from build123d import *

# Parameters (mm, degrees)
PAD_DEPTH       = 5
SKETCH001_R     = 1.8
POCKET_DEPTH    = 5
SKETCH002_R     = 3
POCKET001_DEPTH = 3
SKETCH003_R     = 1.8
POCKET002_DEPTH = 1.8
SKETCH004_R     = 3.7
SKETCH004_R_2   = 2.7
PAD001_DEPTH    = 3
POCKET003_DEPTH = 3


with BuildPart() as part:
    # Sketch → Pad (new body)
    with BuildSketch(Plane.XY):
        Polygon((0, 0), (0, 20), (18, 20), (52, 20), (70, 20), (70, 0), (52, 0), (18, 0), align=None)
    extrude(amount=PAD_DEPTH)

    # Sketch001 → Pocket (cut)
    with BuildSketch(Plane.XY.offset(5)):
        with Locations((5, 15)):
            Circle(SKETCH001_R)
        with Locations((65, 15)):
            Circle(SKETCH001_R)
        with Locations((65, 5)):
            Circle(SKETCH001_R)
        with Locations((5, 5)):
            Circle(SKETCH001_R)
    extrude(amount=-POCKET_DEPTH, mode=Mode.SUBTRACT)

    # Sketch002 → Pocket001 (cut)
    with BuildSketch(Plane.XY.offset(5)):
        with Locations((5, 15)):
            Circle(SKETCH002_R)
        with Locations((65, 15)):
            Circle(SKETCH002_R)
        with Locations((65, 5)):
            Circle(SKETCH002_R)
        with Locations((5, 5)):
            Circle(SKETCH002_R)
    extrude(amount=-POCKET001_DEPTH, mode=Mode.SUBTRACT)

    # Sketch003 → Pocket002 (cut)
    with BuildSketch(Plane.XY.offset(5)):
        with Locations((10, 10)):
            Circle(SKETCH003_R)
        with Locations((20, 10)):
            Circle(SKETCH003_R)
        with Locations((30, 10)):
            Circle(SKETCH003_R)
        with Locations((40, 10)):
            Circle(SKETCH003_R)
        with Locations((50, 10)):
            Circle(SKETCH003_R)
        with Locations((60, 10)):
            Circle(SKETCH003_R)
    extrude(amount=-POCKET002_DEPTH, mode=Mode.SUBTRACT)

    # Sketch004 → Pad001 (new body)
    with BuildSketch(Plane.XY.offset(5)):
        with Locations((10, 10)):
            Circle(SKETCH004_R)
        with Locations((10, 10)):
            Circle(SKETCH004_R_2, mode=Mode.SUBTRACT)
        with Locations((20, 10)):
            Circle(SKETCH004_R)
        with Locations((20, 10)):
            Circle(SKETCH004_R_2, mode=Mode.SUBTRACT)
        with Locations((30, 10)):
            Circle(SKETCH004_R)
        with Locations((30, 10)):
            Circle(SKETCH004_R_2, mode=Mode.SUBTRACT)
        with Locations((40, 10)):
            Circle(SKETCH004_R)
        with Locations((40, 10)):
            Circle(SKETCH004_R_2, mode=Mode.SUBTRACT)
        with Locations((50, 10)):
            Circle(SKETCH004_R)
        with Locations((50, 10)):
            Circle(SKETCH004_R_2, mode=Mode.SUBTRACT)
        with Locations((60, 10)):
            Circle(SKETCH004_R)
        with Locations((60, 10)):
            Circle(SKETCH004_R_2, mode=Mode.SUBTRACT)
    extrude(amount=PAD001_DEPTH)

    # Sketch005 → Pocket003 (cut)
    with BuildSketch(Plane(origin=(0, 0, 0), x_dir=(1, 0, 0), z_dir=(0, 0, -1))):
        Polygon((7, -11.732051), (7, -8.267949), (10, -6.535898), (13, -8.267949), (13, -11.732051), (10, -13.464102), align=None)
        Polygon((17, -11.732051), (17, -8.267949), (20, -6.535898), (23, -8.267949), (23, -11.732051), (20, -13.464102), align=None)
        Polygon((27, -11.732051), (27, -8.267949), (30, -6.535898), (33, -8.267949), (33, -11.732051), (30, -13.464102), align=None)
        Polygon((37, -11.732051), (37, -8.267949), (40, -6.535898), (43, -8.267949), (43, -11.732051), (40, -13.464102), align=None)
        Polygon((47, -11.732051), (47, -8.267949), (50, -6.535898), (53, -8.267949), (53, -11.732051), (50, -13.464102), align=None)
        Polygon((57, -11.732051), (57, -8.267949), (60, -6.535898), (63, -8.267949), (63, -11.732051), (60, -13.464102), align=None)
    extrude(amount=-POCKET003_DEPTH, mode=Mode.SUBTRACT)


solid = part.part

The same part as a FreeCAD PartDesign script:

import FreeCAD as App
import Part
import Sketcher
from FreeCAD import Vector
Q = App.Units.Quantity

doc = App.newDocument("Part")
body = doc.addObject("PartDesign::Body", "Body")

sketch1 = doc.addObject("Sketcher::SketchObject", "Sketch")
body.addObject(sketch1)
sketch1.AttachmentSupport = (doc.XY_Plane, [""])
sketch1.MapMode = "FlatFace"
sketch1.addGeometry(Part.LineSegment(Vector(0, 20, 0), Vector(0, 0, 0)), False)
sketch1.addGeometry(Part.LineSegment(Vector(0, 0, 0), Vector(70, 0, 0)), False)
sketch1.addGeometry(Part.LineSegment(Vector(70, 0, 0), Vector(70, 20, 0)), False)
sketch1.addGeometry(Part.LineSegment(Vector(70, 20, 0), Vector(0, 20, 0)), False)
sketch1.addConstraint(Sketcher.Constraint("Coincident", 0, 2, 1, 1))
sketch1.addConstraint(Sketcher.Constraint("Coincident", 1, 2, 2, 1))
sketch1.addConstraint(Sketcher.Constraint("Coincident", 2, 2, 3, 1))
sketch1.addConstraint(Sketcher.Constraint("Coincident", 3, 2, 0, 1))
sketch1.addConstraint(Sketcher.Constraint("Vertical", 0))
sketch1.addConstraint(Sketcher.Constraint("Horizontal", 1))
sketch1.addConstraint(Sketcher.Constraint("Vertical", 2))
sketch1.addConstraint(Sketcher.Constraint("Horizontal", 3))
sketch1.addConstraint(Sketcher.Constraint("Coincident", 0, 2, -1, 1))
sketch1.addConstraint(Sketcher.Constraint("DistanceX", 1, 1, 1, 2, 70.0))
sketch1.addConstraint(Sketcher.Constraint("DistanceY", 0, 2, 0, 1, 20.0))
pad1 = doc.addObject("PartDesign::Pad", "Pad")
body.addObject(pad1)
pad1.Profile = sketch1
pad1.Length = 5

sketch2 = doc.addObject("Sketcher::SketchObject", "Sketch001")
body.addObject(sketch2)
sketch2.AttachmentSupport = (doc.XY_Plane, [""])
sketch2.MapMode = "FlatFace"
sketch2.AttachmentOffset = App.Placement(Vector(0, 0, 5), App.Rotation())
sketch2.addGeometry(Part.Circle(Vector(5, 15, 0), Vector(0, 0, 1), 1.8), False)
sketch2.addGeometry(Part.Circle(Vector(65, 15, 0), Vector(0, 0, 1), 1.8), False)
sketch2.addGeometry(Part.Circle(Vector(65, 5, 0), Vector(0, 0, 1), 1.8), False)
sketch2.addGeometry(Part.Circle(Vector(5, 5, 0), Vector(0, 0, 1), 1.8), False)
sketch2.addConstraint(Sketcher.Constraint("Equal", 0, 1))
sketch2.addConstraint(Sketcher.Constraint("Equal", 1, 2))
sketch2.addConstraint(Sketcher.Constraint("Equal", 2, 3))
sketch2.addConstraint(Sketcher.Constraint("Horizontal", 0, 3, 1, 3))
sketch2.addConstraint(Sketcher.Constraint("Horizontal", 2, 3, 3, 3))
sketch2.addConstraint(Sketcher.Constraint("Vertical", 1, 3, 2, 3))
sketch2.addConstraint(Sketcher.Constraint("Vertical", 0, 3, 3, 3))
sketch2.addConstraint(Sketcher.Constraint("Diameter", 0, 3.6))
sketch2.addConstraint(Sketcher.Constraint("DistanceX", -1, 1, 0, 3, 5.0))
sketch2.addConstraint(Sketcher.Constraint("DistanceY", -1, 1, 0, 3, 15.0))
sketch2.addConstraint(Sketcher.Constraint("DistanceX", -1, 1, 1, 3, 65.0))
sketch2.addConstraint(Sketcher.Constraint("DistanceY", -1, 1, 2, 3, 5.0))
pocket1 = doc.addObject("PartDesign::Pocket", "Pocket")
body.addObject(pocket1)
pocket1.Profile = sketch2
pocket1.Length = 5

sketch3 = doc.addObject("Sketcher::SketchObject", "Sketch002")
body.addObject(sketch3)
sketch3.AttachmentSupport = (doc.XY_Plane, [""])
sketch3.MapMode = "FlatFace"
sketch3.AttachmentOffset = App.Placement(Vector(0, 0, 5), App.Rotation())
sketch3.addGeometry(Part.Circle(Vector(5, 15, 0), Vector(0, 0, 1), 3), False)
sketch3.addGeometry(Part.Circle(Vector(65, 15, 0), Vector(0, 0, 1), 3), False)
sketch3.addGeometry(Part.Circle(Vector(65, 5, 0), Vector(0, 0, 1), 3), False)
sketch3.addGeometry(Part.Circle(Vector(5, 5, 0), Vector(0, 0, 1), 3), False)
sketch3.addConstraint(Sketcher.Constraint("Equal", 0, 1))
sketch3.addConstraint(Sketcher.Constraint("Equal", 1, 2))
sketch3.addConstraint(Sketcher.Constraint("Equal", 2, 3))
sketch3.addConstraint(Sketcher.Constraint("Horizontal", 0, 3, 1, 3))
sketch3.addConstraint(Sketcher.Constraint("Horizontal", 2, 3, 3, 3))
sketch3.addConstraint(Sketcher.Constraint("Vertical", 1, 3, 2, 3))
sketch3.addConstraint(Sketcher.Constraint("Vertical", 0, 3, 3, 3))
sketch3.addConstraint(Sketcher.Constraint("Diameter", 0, 6.0))
sketch3.addConstraint(Sketcher.Constraint("DistanceX", -1, 1, 0, 3, 5.0))
sketch3.addConstraint(Sketcher.Constraint("DistanceY", -1, 1, 0, 3, 15.0))
sketch3.addConstraint(Sketcher.Constraint("DistanceX", -1, 1, 1, 3, 65.0))
sketch3.addConstraint(Sketcher.Constraint("DistanceY", -1, 1, 2, 3, 5.0))
pocket2 = doc.addObject("PartDesign::Pocket", "Pocket001")
body.addObject(pocket2)
pocket2.Profile = sketch3
pocket2.Length = 3

sketch4 = doc.addObject("Sketcher::SketchObject", "Sketch003")
body.addObject(sketch4)
sketch4.AttachmentSupport = (doc.XY_Plane, [""])
sketch4.MapMode = "FlatFace"
sketch4.AttachmentOffset = App.Placement(Vector(0, 0, 5), App.Rotation())
sketch4.addGeometry(Part.Circle(Vector(10, 10, 0), Vector(0, 0, 1), 1.8), False)
sketch4.addGeometry(Part.Circle(Vector(20, 10, 0), Vector(0, 0, 1), 1.8), False)
sketch4.addGeometry(Part.Circle(Vector(30, 10, 0), Vector(0, 0, 1), 1.8), False)
sketch4.addGeometry(Part.Circle(Vector(40, 10, 0), Vector(0, 0, 1), 1.8), False)
sketch4.addGeometry(Part.Circle(Vector(50, 10, 0), Vector(0, 0, 1), 1.8), False)
sketch4.addGeometry(Part.Circle(Vector(60, 10, 0), Vector(0, 0, 1), 1.8), False)
sketch4.addConstraint(Sketcher.Constraint("Equal", 0, 1))
sketch4.addConstraint(Sketcher.Constraint("Equal", 1, 2))
sketch4.addConstraint(Sketcher.Constraint("Equal", 2, 3))
sketch4.addConstraint(Sketcher.Constraint("Equal", 3, 4))
sketch4.addConstraint(Sketcher.Constraint("Equal", 4, 5))
sketch4.addConstraint(Sketcher.Constraint("Horizontal", 0, 3, 1, 3))
sketch4.addConstraint(Sketcher.Constraint("Horizontal", 1, 3, 2, 3))
sketch4.addConstraint(Sketcher.Constraint("Horizontal", 2, 3, 3, 3))
sketch4.addConstraint(Sketcher.Constraint("Horizontal", 3, 3, 4, 3))
sketch4.addConstraint(Sketcher.Constraint("Horizontal", 4, 3, 5, 3))
sketch4.addConstraint(Sketcher.Constraint("Diameter", 0, 3.6))
sketch4.addConstraint(Sketcher.Constraint("DistanceX", -1, 1, 0, 3, 10.0))
sketch4.addConstraint(Sketcher.Constraint("DistanceY", -1, 1, 0, 3, 10.0))
sketch4.addConstraint(Sketcher.Constraint("DistanceX", -1, 1, 1, 3, 20.0))
sketch4.addConstraint(Sketcher.Constraint("DistanceX", -1, 1, 2, 3, 30.0))
sketch4.addConstraint(Sketcher.Constraint("DistanceX", -1, 1, 3, 3, 40.0))
sketch4.addConstraint(Sketcher.Constraint("DistanceX", -1, 1, 4, 3, 50.0))
sketch4.addConstraint(Sketcher.Constraint("DistanceX", -1, 1, 5, 3, 60.0))
pocket3 = doc.addObject("PartDesign::Pocket", "Pocket002")
body.addObject(pocket3)
pocket3.Profile = sketch4
pocket3.Length = 1.8

sketch5 = doc.addObject("Sketcher::SketchObject", "Sketch004")
body.addObject(sketch5)
sketch5.AttachmentSupport = (doc.XY_Plane, [""])
sketch5.MapMode = "FlatFace"
sketch5.AttachmentOffset = App.Placement(Vector(0, 0, 5), App.Rotation())
sketch5.addGeometry(Part.Circle(Vector(10, 10, 0), Vector(0, 0, 1), 3.7), False)
sketch5.addGeometry(Part.Circle(Vector(10, 10, 0), Vector(0, 0, 1), 2.7), False)
sketch5.addGeometry(Part.Circle(Vector(20, 10, 0), Vector(0, 0, 1), 3.7), False)
sketch5.addGeometry(Part.Circle(Vector(20, 10, 0), Vector(0, 0, 1), 2.7), False)
sketch5.addGeometry(Part.Circle(Vector(30, 10, 0), Vector(0, 0, 1), 3.7), False)
sketch5.addGeometry(Part.Circle(Vector(30, 10, 0), Vector(0, 0, 1), 2.7), False)
sketch5.addGeometry(Part.Circle(Vector(40, 10, 0), Vector(0, 0, 1), 3.7), False)
sketch5.addGeometry(Part.Circle(Vector(40, 10, 0), Vector(0, 0, 1), 2.7), False)
sketch5.addGeometry(Part.Circle(Vector(50, 10, 0), Vector(0, 0, 1), 3.7), False)
sketch5.addGeometry(Part.Circle(Vector(50, 10, 0), Vector(0, 0, 1), 2.7), False)
sketch5.addGeometry(Part.Circle(Vector(60, 10, 0), Vector(0, 0, 1), 3.7), False)
sketch5.addGeometry(Part.Circle(Vector(60, 10, 0), Vector(0, 0, 1), 2.7), False)
sketch5.addConstraint(Sketcher.Constraint("Coincident", 1, 3, 0, 3))
sketch5.addConstraint(Sketcher.Constraint("Coincident", 3, 3, 2, 3))
sketch5.addConstraint(Sketcher.Constraint("Coincident", 5, 3, 4, 3))
sketch5.addConstraint(Sketcher.Constraint("Coincident", 7, 3, 6, 3))
sketch5.addConstraint(Sketcher.Constraint("Coincident", 9, 3, 8, 3))
sketch5.addConstraint(Sketcher.Constraint("Coincident", 11, 3, 10, 3))
sketch5.addConstraint(Sketcher.Constraint("Equal", 0, 2))
sketch5.addConstraint(Sketcher.Constraint("Equal", 1, 3))
sketch5.addConstraint(Sketcher.Constraint("Equal", 2, 4))
sketch5.addConstraint(Sketcher.Constraint("Equal", 3, 5))
sketch5.addConstraint(Sketcher.Constraint("Equal", 4, 6))
sketch5.addConstraint(Sketcher.Constraint("Equal", 5, 7))
sketch5.addConstraint(Sketcher.Constraint("Equal", 6, 8))
sketch5.addConstraint(Sketcher.Constraint("Equal", 7, 9))
sketch5.addConstraint(Sketcher.Constraint("Equal", 8, 10))
sketch5.addConstraint(Sketcher.Constraint("Equal", 9, 11))
sketch5.addConstraint(Sketcher.Constraint("Horizontal", 1, 3, 2, 3))
sketch5.addConstraint(Sketcher.Constraint("Horizontal", 3, 3, 4, 3))
sketch5.addConstraint(Sketcher.Constraint("Horizontal", 5, 3, 6, 3))
sketch5.addConstraint(Sketcher.Constraint("Horizontal", 7, 3, 8, 3))
sketch5.addConstraint(Sketcher.Constraint("Horizontal", 9, 3, 10, 3))
sketch5.addConstraint(Sketcher.Constraint("Diameter", 0, 7.4))
sketch5.addConstraint(Sketcher.Constraint("Diameter", 1, 5.4))
sketch5.addConstraint(Sketcher.Constraint("DistanceX", -1, 1, 0, 3, 10.0))
sketch5.addConstraint(Sketcher.Constraint("DistanceY", -1, 1, 0, 3, 10.0))
sketch5.addConstraint(Sketcher.Constraint("DistanceX", -1, 1, 2, 3, 20.0))
sketch5.addConstraint(Sketcher.Constraint("DistanceX", -1, 1, 4, 3, 30.0))
sketch5.addConstraint(Sketcher.Constraint("DistanceX", -1, 1, 6, 3, 40.0))
sketch5.addConstraint(Sketcher.Constraint("DistanceX", -1, 1, 8, 3, 50.0))
sketch5.addConstraint(Sketcher.Constraint("DistanceX", -1, 1, 10, 3, 60.0))
pad2 = doc.addObject("PartDesign::Pad", "Pad001")
body.addObject(pad2)
pad2.Profile = sketch5
pad2.Length = 3

sketch6 = doc.addObject("Sketcher::SketchObject", "Sketch005")
body.addObject(sketch6)
sketch6.AttachmentSupport = (doc.XY_Plane, [""])
sketch6.MapMode = "FlatFace"
sketch6.addGeometry(Part.LineSegment(Vector(7, 8.3, 0), Vector(7, 11.7, 0)), False)
sketch6.addGeometry(Part.LineSegment(Vector(7, 11.7, 0), Vector(10, 13.5, 0)), False)
sketch6.addGeometry(Part.LineSegment(Vector(10, 13.5, 0), Vector(13, 11.7, 0)), False)
sketch6.addGeometry(Part.LineSegment(Vector(13, 11.7, 0), Vector(13, 8.3, 0)), False)
sketch6.addGeometry(Part.LineSegment(Vector(13, 8.3, 0), Vector(10, 6.5, 0)), False)
sketch6.addGeometry(Part.LineSegment(Vector(10, 6.5, 0), Vector(7, 8.3, 0)), False)
sketch6.addGeometry(Part.LineSegment(Vector(17, 8.3, 0), Vector(17, 11.7, 0)), False)
sketch6.addGeometry(Part.LineSegment(Vector(17, 11.7, 0), Vector(20, 13.5, 0)), False)
sketch6.addGeometry(Part.LineSegment(Vector(20, 13.5, 0), Vector(23, 11.7, 0)), False)
sketch6.addGeometry(Part.LineSegment(Vector(23, 11.7, 0), Vector(23, 8.3, 0)), False)
sketch6.addGeometry(Part.LineSegment(Vector(23, 8.3, 0), Vector(20, 6.5, 0)), False)
sketch6.addGeometry(Part.LineSegment(Vector(20, 6.5, 0), Vector(17, 8.3, 0)), False)
sketch6.addGeometry(Part.LineSegment(Vector(27, 8.3, 0), Vector(27, 11.7, 0)), False)
sketch6.addGeometry(Part.LineSegment(Vector(27, 11.7, 0), Vector(30, 13.5, 0)), False)
sketch6.addGeometry(Part.LineSegment(Vector(30, 13.5, 0), Vector(33, 11.7, 0)), False)
sketch6.addGeometry(Part.LineSegment(Vector(33, 11.7, 0), Vector(33, 8.3, 0)), False)
sketch6.addGeometry(Part.LineSegment(Vector(33, 8.3, 0), Vector(30, 6.5, 0)), False)
sketch6.addGeometry(Part.LineSegment(Vector(30, 6.5, 0), Vector(27, 8.3, 0)), False)
sketch6.addGeometry(Part.LineSegment(Vector(37, 8.3, 0), Vector(37, 11.7, 0)), False)
sketch6.addGeometry(Part.LineSegment(Vector(37, 11.7, 0), Vector(40, 13.5, 0)), False)
sketch6.addGeometry(Part.LineSegment(Vector(40, 13.5, 0), Vector(43, 11.7, 0)), False)
sketch6.addGeometry(Part.LineSegment(Vector(43, 11.7, 0), Vector(43, 8.3, 0)), False)
sketch6.addGeometry(Part.LineSegment(Vector(43, 8.3, 0), Vector(40, 6.5, 0)), False)
sketch6.addGeometry(Part.LineSegment(Vector(40, 6.5, 0), Vector(37, 8.3, 0)), False)
sketch6.addGeometry(Part.LineSegment(Vector(47, 8.3, 0), Vector(47, 11.7, 0)), False)
sketch6.addGeometry(Part.LineSegment(Vector(47, 11.7, 0), Vector(50, 13.5, 0)), False)
sketch6.addGeometry(Part.LineSegment(Vector(50, 13.5, 0), Vector(53, 11.7, 0)), False)
sketch6.addGeometry(Part.LineSegment(Vector(53, 11.7, 0), Vector(53, 8.3, 0)), False)
sketch6.addGeometry(Part.LineSegment(Vector(53, 8.3, 0), Vector(50, 6.5, 0)), False)
sketch6.addGeometry(Part.LineSegment(Vector(50, 6.5, 0), Vector(47, 8.3, 0)), False)
sketch6.addGeometry(Part.LineSegment(Vector(57, 8.3, 0), Vector(57, 11.7, 0)), False)
sketch6.addGeometry(Part.LineSegment(Vector(57, 11.7, 0), Vector(60, 13.5, 0)), False)
sketch6.addGeometry(Part.LineSegment(Vector(60, 13.5, 0), Vector(63, 11.7, 0)), False)
sketch6.addGeometry(Part.LineSegment(Vector(63, 11.7, 0), Vector(63, 8.3, 0)), False)
sketch6.addGeometry(Part.LineSegment(Vector(63, 8.3, 0), Vector(60, 6.5, 0)), False)
sketch6.addGeometry(Part.LineSegment(Vector(60, 6.5, 0), Vector(57, 8.3, 0)), False)
sketch6.addConstraint(Sketcher.Constraint("Coincident", 0, 2, 1, 1))
sketch6.addConstraint(Sketcher.Constraint("Coincident", 1, 2, 2, 1))
sketch6.addConstraint(Sketcher.Constraint("Coincident", 2, 2, 3, 1))
sketch6.addConstraint(Sketcher.Constraint("Coincident", 3, 2, 4, 1))
sketch6.addConstraint(Sketcher.Constraint("Coincident", 4, 2, 5, 1))
sketch6.addConstraint(Sketcher.Constraint("Coincident", 5, 2, 0, 1))
sketch6.addConstraint(Sketcher.Constraint("Coincident", 6, 2, 7, 1))
sketch6.addConstraint(Sketcher.Constraint("Coincident", 7, 2, 8, 1))
sketch6.addConstraint(Sketcher.Constraint("Coincident", 8, 2, 9, 1))
sketch6.addConstraint(Sketcher.Constraint("Coincident", 9, 2, 10, 1))
sketch6.addConstraint(Sketcher.Constraint("Coincident", 10, 2, 11, 1))
sketch6.addConstraint(Sketcher.Constraint("Coincident", 11, 2, 6, 1))
sketch6.addConstraint(Sketcher.Constraint("Coincident", 12, 2, 13, 1))
sketch6.addConstraint(Sketcher.Constraint("Coincident", 13, 2, 14, 1))
sketch6.addConstraint(Sketcher.Constraint("Coincident", 14, 2, 15, 1))
sketch6.addConstraint(Sketcher.Constraint("Coincident", 15, 2, 16, 1))
sketch6.addConstraint(Sketcher.Constraint("Coincident", 16, 2, 17, 1))
sketch6.addConstraint(Sketcher.Constraint("Coincident", 17, 2, 12, 1))
sketch6.addConstraint(Sketcher.Constraint("Coincident", 18, 2, 19, 1))
sketch6.addConstraint(Sketcher.Constraint("Coincident", 19, 2, 20, 1))
sketch6.addConstraint(Sketcher.Constraint("Coincident", 20, 2, 21, 1))
sketch6.addConstraint(Sketcher.Constraint("Coincident", 21, 2, 22, 1))
sketch6.addConstraint(Sketcher.Constraint("Coincident", 22, 2, 23, 1))
sketch6.addConstraint(Sketcher.Constraint("Coincident", 23, 2, 18, 1))
sketch6.addConstraint(Sketcher.Constraint("Coincident", 24, 2, 25, 1))
sketch6.addConstraint(Sketcher.Constraint("Coincident", 25, 2, 26, 1))
sketch6.addConstraint(Sketcher.Constraint("Coincident", 26, 2, 27, 1))
sketch6.addConstraint(Sketcher.Constraint("Coincident", 27, 2, 28, 1))
sketch6.addConstraint(Sketcher.Constraint("Coincident", 28, 2, 29, 1))
sketch6.addConstraint(Sketcher.Constraint("Coincident", 29, 2, 24, 1))
sketch6.addConstraint(Sketcher.Constraint("Coincident", 30, 2, 31, 1))
sketch6.addConstraint(Sketcher.Constraint("Coincident", 31, 2, 32, 1))
sketch6.addConstraint(Sketcher.Constraint("Coincident", 32, 2, 33, 1))
sketch6.addConstraint(Sketcher.Constraint("Coincident", 33, 2, 34, 1))
sketch6.addConstraint(Sketcher.Constraint("Coincident", 34, 2, 35, 1))
sketch6.addConstraint(Sketcher.Constraint("Coincident", 35, 2, 30, 1))
sketch6.addConstraint(Sketcher.Constraint("Vertical", 0))
sketch6.addConstraint(Sketcher.Constraint("Vertical", 3))
sketch6.addConstraint(Sketcher.Constraint("Vertical", 6))
sketch6.addConstraint(Sketcher.Constraint("Vertical", 9))
sketch6.addConstraint(Sketcher.Constraint("Vertical", 12))
sketch6.addConstraint(Sketcher.Constraint("Vertical", 15))
sketch6.addConstraint(Sketcher.Constraint("Vertical", 18))
sketch6.addConstraint(Sketcher.Constraint("Vertical", 21))
sketch6.addConstraint(Sketcher.Constraint("Vertical", 24))
sketch6.addConstraint(Sketcher.Constraint("Vertical", 27))
sketch6.addConstraint(Sketcher.Constraint("Vertical", 30))
sketch6.addConstraint(Sketcher.Constraint("Vertical", 33))
sketch6.addConstraint(Sketcher.Constraint("Parallel", 1, 4))
sketch6.addConstraint(Sketcher.Constraint("Parallel", 2, 5))
sketch6.addConstraint(Sketcher.Constraint("Parallel", 4, 7))
sketch6.addConstraint(Sketcher.Constraint("Parallel", 5, 8))
sketch6.addConstraint(Sketcher.Constraint("Parallel", 7, 10))
sketch6.addConstraint(Sketcher.Constraint("Parallel", 8, 11))
sketch6.addConstraint(Sketcher.Constraint("Parallel", 10, 13))
sketch6.addConstraint(Sketcher.Constraint("Parallel", 11, 14))
sketch6.addConstraint(Sketcher.Constraint("Parallel", 13, 16))
sketch6.addConstraint(Sketcher.Constraint("Parallel", 14, 17))
sketch6.addConstraint(Sketcher.Constraint("Parallel", 16, 19))
sketch6.addConstraint(Sketcher.Constraint("Parallel", 17, 20))
sketch6.addConstraint(Sketcher.Constraint("Parallel", 19, 22))
sketch6.addConstraint(Sketcher.Constraint("Parallel", 20, 23))
sketch6.addConstraint(Sketcher.Constraint("Parallel", 22, 25))
sketch6.addConstraint(Sketcher.Constraint("Parallel", 23, 26))
sketch6.addConstraint(Sketcher.Constraint("Parallel", 25, 28))
sketch6.addConstraint(Sketcher.Constraint("Parallel", 26, 29))
sketch6.addConstraint(Sketcher.Constraint("Parallel", 28, 31))
sketch6.addConstraint(Sketcher.Constraint("Parallel", 29, 32))
sketch6.addConstraint(Sketcher.Constraint("Parallel", 31, 34))
sketch6.addConstraint(Sketcher.Constraint("Parallel", 32, 35))
sketch6.addConstraint(Sketcher.Constraint("Horizontal", 0, 2, 2, 2))
sketch6.addConstraint(Sketcher.Constraint("Horizontal", 3, 2, 5, 2))
sketch6.addConstraint(Sketcher.Constraint("Horizontal", 2, 2, 6, 2))
sketch6.addConstraint(Sketcher.Constraint("Horizontal", 1, 2, 7, 2))
sketch6.addConstraint(Sketcher.Constraint("Horizontal", 6, 2, 8, 2))
sketch6.addConstraint(Sketcher.Constraint("Horizontal", 5, 2, 9, 2))
sketch6.addConstraint(Sketcher.Constraint("Horizontal", 4, 2, 10, 2))
sketch6.addConstraint(Sketcher.Constraint("Horizontal", 8, 2, 12, 2))
sketch6.addConstraint(Sketcher.Constraint("Horizontal", 7, 2, 13, 2))
sketch6.addConstraint(Sketcher.Constraint("Horizontal", 12, 2, 14, 2))
sketch6.addConstraint(Sketcher.Constraint("Horizontal", 11, 2, 15, 2))
sketch6.addConstraint(Sketcher.Constraint("Horizontal", 10, 2, 16, 2))
sketch6.addConstraint(Sketcher.Constraint("Horizontal", 14, 2, 18, 2))
sketch6.addConstraint(Sketcher.Constraint("Horizontal", 13, 2, 19, 2))
sketch6.addConstraint(Sketcher.Constraint("Horizontal", 18, 2, 20, 2))
sketch6.addConstraint(Sketcher.Constraint("Horizontal", 17, 2, 21, 2))
sketch6.addConstraint(Sketcher.Constraint("Horizontal", 16, 2, 22, 2))
sketch6.addConstraint(Sketcher.Constraint("Horizontal", 20, 2, 24, 2))
sketch6.addConstraint(Sketcher.Constraint("Horizontal", 19, 2, 25, 2))
sketch6.addConstraint(Sketcher.Constraint("Horizontal", 24, 2, 26, 2))
sketch6.addConstraint(Sketcher.Constraint("Horizontal", 23, 2, 27, 2))
sketch6.addConstraint(Sketcher.Constraint("Horizontal", 22, 2, 28, 2))
sketch6.addConstraint(Sketcher.Constraint("Horizontal", 26, 2, 30, 2))
sketch6.addConstraint(Sketcher.Constraint("Horizontal", 25, 2, 31, 2))
sketch6.addConstraint(Sketcher.Constraint("Horizontal", 30, 2, 32, 2))
sketch6.addConstraint(Sketcher.Constraint("Horizontal", 29, 2, 33, 2))
sketch6.addConstraint(Sketcher.Constraint("Horizontal", 28, 2, 34, 2))
sketch6.addConstraint(Sketcher.Constraint("Vertical", 1, 2, 4, 2))
sketch6.addConstraint(Sketcher.Constraint("Angle", 1, Q("30.000003 deg")))
sketch6.addConstraint(Sketcher.Constraint("DistanceX", -1, 1, 0, 2, 7.0))
sketch6.addConstraint(Sketcher.Constraint("DistanceX", -1, 1, 1, 2, 10.0))
sketch6.addConstraint(Sketcher.Constraint("DistanceX", -1, 1, 6, 2, 17.0))
sketch6.addConstraint(Sketcher.Constraint("DistanceX", -1, 1, 12, 2, 27.0))
sketch6.addConstraint(Sketcher.Constraint("DistanceX", -1, 1, 18, 2, 37.0))
sketch6.addConstraint(Sketcher.Constraint("DistanceX", -1, 1, 24, 2, 47.0))
sketch6.addConstraint(Sketcher.Constraint("DistanceX", -1, 1, 30, 2, 57.0))
sketch6.addConstraint(Sketcher.Constraint("DistanceY", -1, 1, 4, 2, 6.535898))
sketch6.addConstraint(Sketcher.Constraint("DistanceY", 0, 1, 0, 2, 3.464102))
pocket4 = doc.addObject("PartDesign::Pocket", "Pocket003")
body.addObject(pocket4)
pocket4.Profile = sketch6
pocket4.Length = 3
pocket4.Reversed = True

doc.recompute()
